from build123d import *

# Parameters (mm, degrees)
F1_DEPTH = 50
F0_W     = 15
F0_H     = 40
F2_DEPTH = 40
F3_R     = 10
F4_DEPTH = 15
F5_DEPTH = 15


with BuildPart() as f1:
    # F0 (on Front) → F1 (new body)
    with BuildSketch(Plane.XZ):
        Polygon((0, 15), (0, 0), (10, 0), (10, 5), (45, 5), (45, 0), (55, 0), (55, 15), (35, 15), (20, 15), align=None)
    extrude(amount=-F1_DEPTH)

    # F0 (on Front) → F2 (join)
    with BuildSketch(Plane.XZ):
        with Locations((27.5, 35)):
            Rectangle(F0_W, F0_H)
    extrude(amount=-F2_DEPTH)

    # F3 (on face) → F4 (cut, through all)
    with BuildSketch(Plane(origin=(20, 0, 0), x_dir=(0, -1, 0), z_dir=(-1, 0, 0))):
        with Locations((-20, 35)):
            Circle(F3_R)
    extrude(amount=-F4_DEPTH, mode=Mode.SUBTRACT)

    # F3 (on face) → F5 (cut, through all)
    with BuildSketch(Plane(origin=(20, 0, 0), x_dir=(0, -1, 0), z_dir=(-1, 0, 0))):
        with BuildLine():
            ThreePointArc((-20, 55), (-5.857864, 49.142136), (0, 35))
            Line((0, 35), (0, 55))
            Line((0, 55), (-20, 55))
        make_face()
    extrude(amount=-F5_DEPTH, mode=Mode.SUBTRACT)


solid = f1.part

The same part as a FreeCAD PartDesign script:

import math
import FreeCAD as App
import Part
import Sketcher
from FreeCAD import Vector


def add_polygon(sketch, points):
    """Adds a closed chain of lines whose ends are joined by coincident constraints."""
    first, n = sketch.GeometryCount, len(points)
    for a, b in zip(points, points[1:] + points[:1]):
        sketch.addGeometry(Part.LineSegment(App.Vector(*a, 0), App.Vector(*b, 0)), False)
    for i in range(n):
        sketch.addConstraint(Sketcher.Constraint("Coincident", first + i, 2, first + (i + 1) % n, 1))

doc = App.newDocument("Part")
body = doc.addObject("PartDesign::Body", "Body")

# Sketch on XZ plane
sketch1 = body.newObject("Sketcher::SketchObject", "Sketch")
sketch1.AttachmentSupport = (doc.getObject("XZ_Plane"), [""])
sketch1.MapMode = "FlatFace"
add_polygon(sketch1, [(0, 15), (0, 0), (10, 0), (10, 5), (45, 5), (45, 0), (55, 0), (55, 15)])  # lines 0-7
sketch1.addConstraint([
    Sketcher.Constraint("Vertical", 0),
    Sketcher.Constraint("Horizontal", 1),
    Sketcher.Constraint("Vertical", 2),
    Sketcher.Constraint("Horizontal", 3),
    Sketcher.Constraint("Vertical", 4),
    Sketcher.Constraint("Horizontal", 5),
    Sketcher.Constraint("Vertical", 6),
    Sketcher.Constraint("Horizontal", 7),
    Sketcher.Constraint("Coincident", 0, 2, -1, 1),
    Sketcher.Constraint("PointOnObject", 4, 2, -1),
    Sketcher.Constraint("Equal", 1, 5),
    Sketcher.Constraint("DistanceX", 1, 1, 1, 2, 10.0),
    Sketcher.Constraint("DistanceX", 3, 1, 3, 2, 35.0),
    Sketcher.Constraint("DistanceY", 0, 2, 0, 1, 15.0),
    Sketcher.Constraint("DistanceY", 2, 1, 2, 2, 5.0),
])
pad1 = body.newObject("PartDesign::Pad", "Pad")
pad1.Profile = sketch1
pad1.Length = 50
pad1.Reversed = True

# Sketch on XZ plane
sketch2 = body.newObject("Sketcher::SketchObject", "Sketch001")
sketch2.AttachmentSupport = (doc.getObject("XZ_Plane"), [""])
sketch2.MapMode = "FlatFace"
add_polygon(sketch2, [(20, 55), (20, 15), (35, 15), (35, 55)])  # lines 0-3
sketch2.addConstraint([
    Sketcher.Constraint("Vertical", 0),
    Sketcher.Constraint("Horizontal", 1),
    Sketcher.Constraint("Vertical", 2),
    Sketcher.Constraint("Horizontal", 3),
    Sketcher.Constraint("DistanceX", 1, 1, 1, 2, 15.0),
    Sketcher.Constraint("DistanceY", 0, 2, 0, 1, 40.0),
    Sketcher.Constraint("DistanceX", -1, 1, 0, 2, 20.0),
    Sketcher.Constraint("DistanceY", -1, 1, 0, 2, 15.0),
])
pad2 = body.newObject("PartDesign::Pad", "Pad001")
pad2.Profile = sketch2
pad2.Length = 40
pad2.Reversed = True

# Sketch on YZ plane
sketch3 = body.newObject("Sketcher::SketchObject", "Sketch002")
sketch3.AttachmentSupport = (doc.getObject("YZ_Plane"), [""])
sketch3.MapMode = "FlatFace"
sketch3.AttachmentOffset = App.Placement(Vector(0, 0, 20), App.Rotation())
sketch3.addGeometry(Part.Circle(Vector(20, 35, 0), Vector(0, 0, 1), 10), False)
sketch3.addConstraint([
    Sketcher.Constraint("Diameter", 0, 20.0),
    Sketcher.Constraint("DistanceX", -1, 1, 0, 3, 20.0),
    Sketcher.Constraint("DistanceY", -1, 1, 0, 3, 35.0),
])
pocket1 = body.newObject("PartDesign::Pocket", "Pocket")
pocket1.Profile = sketch3
pocket1.Type = "ThroughAll"
pocket1.Reversed = True

# Sketch on YZ plane
sketch4 = body.newObject("Sketcher::SketchObject", "Sketch003")
sketch4.AttachmentSupport = (doc.getObject("YZ_Plane"), [""])
sketch4.MapMode = "FlatFace"
sketch4.AttachmentOffset = App.Placement(Vector(0, 0, 20), App.Rotation())
sketch4.addGeometry([
    Part.ArcOfCircle(Part.Circle(Vector(19.999999, 35.000001, 0), Vector(0, 0, 1), 19.999999), math.radians(89.999996), math.radians(180.000004)),
    Part.LineSegment(Vector(0, 35, 0), Vector(0, 55, 0)),
    Part.LineSegment(Vector(0, 55, 0), Vector(20, 55, 0)),
], False)
sketch4.addConstraint([
    Sketcher.Constraint("Tangent", 0, 2, 1, 1),
    Sketcher.Constraint("Coincident", 1, 2, 2, 1),
    Sketcher.Constraint("Tangent", 2, 2, 0, 1),
    Sketcher.Constraint("Vertical", 1),
    Sketcher.Constraint("Horizontal", 2),
    Sketcher.Constraint("PointOnObject", 0, 2, -2),
    Sketcher.Constraint("Radius", 0, 19.999999),
    Sketcher.Constraint("DistanceY", -1, 1, 0, 3, 35.000001),
])
pocket2 = body.newObject("PartDesign::Pocket", "Pocket001")
pocket2.Profile = sketch4
pocket2.Type = "ThroughAll"
pocket2.Reversed = True

doc.recompute()
